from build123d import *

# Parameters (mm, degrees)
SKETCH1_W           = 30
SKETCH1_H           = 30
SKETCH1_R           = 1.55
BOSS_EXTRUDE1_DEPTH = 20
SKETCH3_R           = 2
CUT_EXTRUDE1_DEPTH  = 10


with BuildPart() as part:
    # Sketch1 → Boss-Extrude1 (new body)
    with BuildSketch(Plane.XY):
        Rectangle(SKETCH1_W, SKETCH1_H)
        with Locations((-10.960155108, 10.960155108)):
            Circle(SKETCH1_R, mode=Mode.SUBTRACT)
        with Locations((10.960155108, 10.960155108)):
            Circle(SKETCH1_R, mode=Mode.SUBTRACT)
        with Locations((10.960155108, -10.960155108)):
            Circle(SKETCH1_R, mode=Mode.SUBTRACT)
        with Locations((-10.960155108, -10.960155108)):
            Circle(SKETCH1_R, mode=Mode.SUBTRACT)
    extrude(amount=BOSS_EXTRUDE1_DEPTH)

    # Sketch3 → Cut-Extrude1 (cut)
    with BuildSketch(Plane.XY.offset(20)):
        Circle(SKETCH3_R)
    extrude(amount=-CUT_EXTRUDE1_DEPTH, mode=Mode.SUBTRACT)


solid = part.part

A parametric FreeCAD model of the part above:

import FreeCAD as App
import Part
import Sketcher


def add_polygon(sketch, points):
    """Adds a closed chain of lines whose ends are joined by coincident constraints."""
    first, n = sketch.GeometryCount, len(points)
    for a, b in zip(points, points[1:] + points[:1]):
        sketch.addGeometry(Part.LineSegment(App.Vector(*a, 0), App.Vector(*b, 0)), False)
    for i in range(n):
        sketch.addConstraint(Sketcher.Constraint("Coincident", first + i, 2, first + (i + 1) % n, 1))

doc = App.newDocument("Part")
body = doc.addObject("PartDesign::Body", "Body")

# Sketch on XY plane
sketch1 = body.newObject("Sketcher::SketchObject", "Sketch")
sketch1.AttachmentSupport = (doc.getObject("XY_Plane"), [""])
sketch1.MapMode = "FlatFace"
add_polygon(sketch1, [(-15, 15), (-15, -15), (15, -15), (15, 15)])  # lines 0-3
sketch1.addGeometry(Part.Circle(App.Vector(-11, -11, 0), App.Vector(0, 0, 1), 1.6), False)  # 4
sketch1.addGeometry(Part.Circle(App.Vector(11, -11, 0), App.Vector(0, 0, 1), 1.6), False)  # 5
sketch1.addGeometry(Part.Circle(App.Vector(-11, 11, 0), App.Vector(0, 0, 1), 1.6), False)  # 6
sketch1.addGeometry(Part.Circle(App.Vector(11, 11, 0), App.Vector(0, 0, 1), 1.6), False)  # 7
sketch1.addConstraint([
    Sketcher.Constraint("Vertical", 0),
    Sketcher.Constraint("Horizontal", 1),
    Sketcher.Constraint("Vertical", 2),
    Sketcher.Constraint("Horizontal", 3),
    Sketcher.Constraint("Equal", 4, 5),
    Sketcher.Constraint("Equal", 5, 6),
    Sketcher.Constraint("Equal", 6, 7),
    Sketcher.Constraint("Symmetric", 5, 3, 6, 3, -1, 1),
    Sketcher.Constraint("Symmetric", 4, 3, 7, 3, -1, 1),
    Sketcher.Constraint("Symmetric", 0, 2, 2, 2, -1, 1),
    Sketcher.Constraint("Symmetric", 4, 3, 5, 3, -2),
    Sketcher.Constraint("Equal", 3, 0),
    Sketcher.Constraint("Diameter", 4, 3.1),
    Sketcher.Constraint("DistanceX", 1, 1, 1, 2, 30.0),
    Sketcher.Constraint("DistanceX", 4, 3, 5, 3, 21.92031),
    Sketcher.Constraint("DistanceY", 4, 3, 6, 3, 21.92031),
])
pad1 = body.newObject("PartDesign::Pad", "Pad")
pad1.Profile = sketch1
pad1.Length = 20

# Sketch on XY plane
sketch2 = body.newObject("Sketcher::SketchObject", "Sketch001")
sketch2.AttachmentSupport = (doc.getObject("XY_Plane"), [""])
sketch2.MapMode = "FlatFace"
sketch2.AttachmentOffset = App.Placement(App.Vector(0, 0, 20), App.Rotation())
sketch2.addGeometry(Part.Circle(App.Vector(0, 0, 0), App.Vector(0, 0, 1), 2), False)
sketch2.addConstraint([
    Sketcher.Constraint("Coincident", 0, 3, -1, 1),
    Sketcher.Constraint("Diameter", 0, 4.0),
])
pocket1 = body.newObject("PartDesign::Pocket", "Pocket")
pocket1.Profile = sketch2
pocket1.Length = 10

doc.recompute()
